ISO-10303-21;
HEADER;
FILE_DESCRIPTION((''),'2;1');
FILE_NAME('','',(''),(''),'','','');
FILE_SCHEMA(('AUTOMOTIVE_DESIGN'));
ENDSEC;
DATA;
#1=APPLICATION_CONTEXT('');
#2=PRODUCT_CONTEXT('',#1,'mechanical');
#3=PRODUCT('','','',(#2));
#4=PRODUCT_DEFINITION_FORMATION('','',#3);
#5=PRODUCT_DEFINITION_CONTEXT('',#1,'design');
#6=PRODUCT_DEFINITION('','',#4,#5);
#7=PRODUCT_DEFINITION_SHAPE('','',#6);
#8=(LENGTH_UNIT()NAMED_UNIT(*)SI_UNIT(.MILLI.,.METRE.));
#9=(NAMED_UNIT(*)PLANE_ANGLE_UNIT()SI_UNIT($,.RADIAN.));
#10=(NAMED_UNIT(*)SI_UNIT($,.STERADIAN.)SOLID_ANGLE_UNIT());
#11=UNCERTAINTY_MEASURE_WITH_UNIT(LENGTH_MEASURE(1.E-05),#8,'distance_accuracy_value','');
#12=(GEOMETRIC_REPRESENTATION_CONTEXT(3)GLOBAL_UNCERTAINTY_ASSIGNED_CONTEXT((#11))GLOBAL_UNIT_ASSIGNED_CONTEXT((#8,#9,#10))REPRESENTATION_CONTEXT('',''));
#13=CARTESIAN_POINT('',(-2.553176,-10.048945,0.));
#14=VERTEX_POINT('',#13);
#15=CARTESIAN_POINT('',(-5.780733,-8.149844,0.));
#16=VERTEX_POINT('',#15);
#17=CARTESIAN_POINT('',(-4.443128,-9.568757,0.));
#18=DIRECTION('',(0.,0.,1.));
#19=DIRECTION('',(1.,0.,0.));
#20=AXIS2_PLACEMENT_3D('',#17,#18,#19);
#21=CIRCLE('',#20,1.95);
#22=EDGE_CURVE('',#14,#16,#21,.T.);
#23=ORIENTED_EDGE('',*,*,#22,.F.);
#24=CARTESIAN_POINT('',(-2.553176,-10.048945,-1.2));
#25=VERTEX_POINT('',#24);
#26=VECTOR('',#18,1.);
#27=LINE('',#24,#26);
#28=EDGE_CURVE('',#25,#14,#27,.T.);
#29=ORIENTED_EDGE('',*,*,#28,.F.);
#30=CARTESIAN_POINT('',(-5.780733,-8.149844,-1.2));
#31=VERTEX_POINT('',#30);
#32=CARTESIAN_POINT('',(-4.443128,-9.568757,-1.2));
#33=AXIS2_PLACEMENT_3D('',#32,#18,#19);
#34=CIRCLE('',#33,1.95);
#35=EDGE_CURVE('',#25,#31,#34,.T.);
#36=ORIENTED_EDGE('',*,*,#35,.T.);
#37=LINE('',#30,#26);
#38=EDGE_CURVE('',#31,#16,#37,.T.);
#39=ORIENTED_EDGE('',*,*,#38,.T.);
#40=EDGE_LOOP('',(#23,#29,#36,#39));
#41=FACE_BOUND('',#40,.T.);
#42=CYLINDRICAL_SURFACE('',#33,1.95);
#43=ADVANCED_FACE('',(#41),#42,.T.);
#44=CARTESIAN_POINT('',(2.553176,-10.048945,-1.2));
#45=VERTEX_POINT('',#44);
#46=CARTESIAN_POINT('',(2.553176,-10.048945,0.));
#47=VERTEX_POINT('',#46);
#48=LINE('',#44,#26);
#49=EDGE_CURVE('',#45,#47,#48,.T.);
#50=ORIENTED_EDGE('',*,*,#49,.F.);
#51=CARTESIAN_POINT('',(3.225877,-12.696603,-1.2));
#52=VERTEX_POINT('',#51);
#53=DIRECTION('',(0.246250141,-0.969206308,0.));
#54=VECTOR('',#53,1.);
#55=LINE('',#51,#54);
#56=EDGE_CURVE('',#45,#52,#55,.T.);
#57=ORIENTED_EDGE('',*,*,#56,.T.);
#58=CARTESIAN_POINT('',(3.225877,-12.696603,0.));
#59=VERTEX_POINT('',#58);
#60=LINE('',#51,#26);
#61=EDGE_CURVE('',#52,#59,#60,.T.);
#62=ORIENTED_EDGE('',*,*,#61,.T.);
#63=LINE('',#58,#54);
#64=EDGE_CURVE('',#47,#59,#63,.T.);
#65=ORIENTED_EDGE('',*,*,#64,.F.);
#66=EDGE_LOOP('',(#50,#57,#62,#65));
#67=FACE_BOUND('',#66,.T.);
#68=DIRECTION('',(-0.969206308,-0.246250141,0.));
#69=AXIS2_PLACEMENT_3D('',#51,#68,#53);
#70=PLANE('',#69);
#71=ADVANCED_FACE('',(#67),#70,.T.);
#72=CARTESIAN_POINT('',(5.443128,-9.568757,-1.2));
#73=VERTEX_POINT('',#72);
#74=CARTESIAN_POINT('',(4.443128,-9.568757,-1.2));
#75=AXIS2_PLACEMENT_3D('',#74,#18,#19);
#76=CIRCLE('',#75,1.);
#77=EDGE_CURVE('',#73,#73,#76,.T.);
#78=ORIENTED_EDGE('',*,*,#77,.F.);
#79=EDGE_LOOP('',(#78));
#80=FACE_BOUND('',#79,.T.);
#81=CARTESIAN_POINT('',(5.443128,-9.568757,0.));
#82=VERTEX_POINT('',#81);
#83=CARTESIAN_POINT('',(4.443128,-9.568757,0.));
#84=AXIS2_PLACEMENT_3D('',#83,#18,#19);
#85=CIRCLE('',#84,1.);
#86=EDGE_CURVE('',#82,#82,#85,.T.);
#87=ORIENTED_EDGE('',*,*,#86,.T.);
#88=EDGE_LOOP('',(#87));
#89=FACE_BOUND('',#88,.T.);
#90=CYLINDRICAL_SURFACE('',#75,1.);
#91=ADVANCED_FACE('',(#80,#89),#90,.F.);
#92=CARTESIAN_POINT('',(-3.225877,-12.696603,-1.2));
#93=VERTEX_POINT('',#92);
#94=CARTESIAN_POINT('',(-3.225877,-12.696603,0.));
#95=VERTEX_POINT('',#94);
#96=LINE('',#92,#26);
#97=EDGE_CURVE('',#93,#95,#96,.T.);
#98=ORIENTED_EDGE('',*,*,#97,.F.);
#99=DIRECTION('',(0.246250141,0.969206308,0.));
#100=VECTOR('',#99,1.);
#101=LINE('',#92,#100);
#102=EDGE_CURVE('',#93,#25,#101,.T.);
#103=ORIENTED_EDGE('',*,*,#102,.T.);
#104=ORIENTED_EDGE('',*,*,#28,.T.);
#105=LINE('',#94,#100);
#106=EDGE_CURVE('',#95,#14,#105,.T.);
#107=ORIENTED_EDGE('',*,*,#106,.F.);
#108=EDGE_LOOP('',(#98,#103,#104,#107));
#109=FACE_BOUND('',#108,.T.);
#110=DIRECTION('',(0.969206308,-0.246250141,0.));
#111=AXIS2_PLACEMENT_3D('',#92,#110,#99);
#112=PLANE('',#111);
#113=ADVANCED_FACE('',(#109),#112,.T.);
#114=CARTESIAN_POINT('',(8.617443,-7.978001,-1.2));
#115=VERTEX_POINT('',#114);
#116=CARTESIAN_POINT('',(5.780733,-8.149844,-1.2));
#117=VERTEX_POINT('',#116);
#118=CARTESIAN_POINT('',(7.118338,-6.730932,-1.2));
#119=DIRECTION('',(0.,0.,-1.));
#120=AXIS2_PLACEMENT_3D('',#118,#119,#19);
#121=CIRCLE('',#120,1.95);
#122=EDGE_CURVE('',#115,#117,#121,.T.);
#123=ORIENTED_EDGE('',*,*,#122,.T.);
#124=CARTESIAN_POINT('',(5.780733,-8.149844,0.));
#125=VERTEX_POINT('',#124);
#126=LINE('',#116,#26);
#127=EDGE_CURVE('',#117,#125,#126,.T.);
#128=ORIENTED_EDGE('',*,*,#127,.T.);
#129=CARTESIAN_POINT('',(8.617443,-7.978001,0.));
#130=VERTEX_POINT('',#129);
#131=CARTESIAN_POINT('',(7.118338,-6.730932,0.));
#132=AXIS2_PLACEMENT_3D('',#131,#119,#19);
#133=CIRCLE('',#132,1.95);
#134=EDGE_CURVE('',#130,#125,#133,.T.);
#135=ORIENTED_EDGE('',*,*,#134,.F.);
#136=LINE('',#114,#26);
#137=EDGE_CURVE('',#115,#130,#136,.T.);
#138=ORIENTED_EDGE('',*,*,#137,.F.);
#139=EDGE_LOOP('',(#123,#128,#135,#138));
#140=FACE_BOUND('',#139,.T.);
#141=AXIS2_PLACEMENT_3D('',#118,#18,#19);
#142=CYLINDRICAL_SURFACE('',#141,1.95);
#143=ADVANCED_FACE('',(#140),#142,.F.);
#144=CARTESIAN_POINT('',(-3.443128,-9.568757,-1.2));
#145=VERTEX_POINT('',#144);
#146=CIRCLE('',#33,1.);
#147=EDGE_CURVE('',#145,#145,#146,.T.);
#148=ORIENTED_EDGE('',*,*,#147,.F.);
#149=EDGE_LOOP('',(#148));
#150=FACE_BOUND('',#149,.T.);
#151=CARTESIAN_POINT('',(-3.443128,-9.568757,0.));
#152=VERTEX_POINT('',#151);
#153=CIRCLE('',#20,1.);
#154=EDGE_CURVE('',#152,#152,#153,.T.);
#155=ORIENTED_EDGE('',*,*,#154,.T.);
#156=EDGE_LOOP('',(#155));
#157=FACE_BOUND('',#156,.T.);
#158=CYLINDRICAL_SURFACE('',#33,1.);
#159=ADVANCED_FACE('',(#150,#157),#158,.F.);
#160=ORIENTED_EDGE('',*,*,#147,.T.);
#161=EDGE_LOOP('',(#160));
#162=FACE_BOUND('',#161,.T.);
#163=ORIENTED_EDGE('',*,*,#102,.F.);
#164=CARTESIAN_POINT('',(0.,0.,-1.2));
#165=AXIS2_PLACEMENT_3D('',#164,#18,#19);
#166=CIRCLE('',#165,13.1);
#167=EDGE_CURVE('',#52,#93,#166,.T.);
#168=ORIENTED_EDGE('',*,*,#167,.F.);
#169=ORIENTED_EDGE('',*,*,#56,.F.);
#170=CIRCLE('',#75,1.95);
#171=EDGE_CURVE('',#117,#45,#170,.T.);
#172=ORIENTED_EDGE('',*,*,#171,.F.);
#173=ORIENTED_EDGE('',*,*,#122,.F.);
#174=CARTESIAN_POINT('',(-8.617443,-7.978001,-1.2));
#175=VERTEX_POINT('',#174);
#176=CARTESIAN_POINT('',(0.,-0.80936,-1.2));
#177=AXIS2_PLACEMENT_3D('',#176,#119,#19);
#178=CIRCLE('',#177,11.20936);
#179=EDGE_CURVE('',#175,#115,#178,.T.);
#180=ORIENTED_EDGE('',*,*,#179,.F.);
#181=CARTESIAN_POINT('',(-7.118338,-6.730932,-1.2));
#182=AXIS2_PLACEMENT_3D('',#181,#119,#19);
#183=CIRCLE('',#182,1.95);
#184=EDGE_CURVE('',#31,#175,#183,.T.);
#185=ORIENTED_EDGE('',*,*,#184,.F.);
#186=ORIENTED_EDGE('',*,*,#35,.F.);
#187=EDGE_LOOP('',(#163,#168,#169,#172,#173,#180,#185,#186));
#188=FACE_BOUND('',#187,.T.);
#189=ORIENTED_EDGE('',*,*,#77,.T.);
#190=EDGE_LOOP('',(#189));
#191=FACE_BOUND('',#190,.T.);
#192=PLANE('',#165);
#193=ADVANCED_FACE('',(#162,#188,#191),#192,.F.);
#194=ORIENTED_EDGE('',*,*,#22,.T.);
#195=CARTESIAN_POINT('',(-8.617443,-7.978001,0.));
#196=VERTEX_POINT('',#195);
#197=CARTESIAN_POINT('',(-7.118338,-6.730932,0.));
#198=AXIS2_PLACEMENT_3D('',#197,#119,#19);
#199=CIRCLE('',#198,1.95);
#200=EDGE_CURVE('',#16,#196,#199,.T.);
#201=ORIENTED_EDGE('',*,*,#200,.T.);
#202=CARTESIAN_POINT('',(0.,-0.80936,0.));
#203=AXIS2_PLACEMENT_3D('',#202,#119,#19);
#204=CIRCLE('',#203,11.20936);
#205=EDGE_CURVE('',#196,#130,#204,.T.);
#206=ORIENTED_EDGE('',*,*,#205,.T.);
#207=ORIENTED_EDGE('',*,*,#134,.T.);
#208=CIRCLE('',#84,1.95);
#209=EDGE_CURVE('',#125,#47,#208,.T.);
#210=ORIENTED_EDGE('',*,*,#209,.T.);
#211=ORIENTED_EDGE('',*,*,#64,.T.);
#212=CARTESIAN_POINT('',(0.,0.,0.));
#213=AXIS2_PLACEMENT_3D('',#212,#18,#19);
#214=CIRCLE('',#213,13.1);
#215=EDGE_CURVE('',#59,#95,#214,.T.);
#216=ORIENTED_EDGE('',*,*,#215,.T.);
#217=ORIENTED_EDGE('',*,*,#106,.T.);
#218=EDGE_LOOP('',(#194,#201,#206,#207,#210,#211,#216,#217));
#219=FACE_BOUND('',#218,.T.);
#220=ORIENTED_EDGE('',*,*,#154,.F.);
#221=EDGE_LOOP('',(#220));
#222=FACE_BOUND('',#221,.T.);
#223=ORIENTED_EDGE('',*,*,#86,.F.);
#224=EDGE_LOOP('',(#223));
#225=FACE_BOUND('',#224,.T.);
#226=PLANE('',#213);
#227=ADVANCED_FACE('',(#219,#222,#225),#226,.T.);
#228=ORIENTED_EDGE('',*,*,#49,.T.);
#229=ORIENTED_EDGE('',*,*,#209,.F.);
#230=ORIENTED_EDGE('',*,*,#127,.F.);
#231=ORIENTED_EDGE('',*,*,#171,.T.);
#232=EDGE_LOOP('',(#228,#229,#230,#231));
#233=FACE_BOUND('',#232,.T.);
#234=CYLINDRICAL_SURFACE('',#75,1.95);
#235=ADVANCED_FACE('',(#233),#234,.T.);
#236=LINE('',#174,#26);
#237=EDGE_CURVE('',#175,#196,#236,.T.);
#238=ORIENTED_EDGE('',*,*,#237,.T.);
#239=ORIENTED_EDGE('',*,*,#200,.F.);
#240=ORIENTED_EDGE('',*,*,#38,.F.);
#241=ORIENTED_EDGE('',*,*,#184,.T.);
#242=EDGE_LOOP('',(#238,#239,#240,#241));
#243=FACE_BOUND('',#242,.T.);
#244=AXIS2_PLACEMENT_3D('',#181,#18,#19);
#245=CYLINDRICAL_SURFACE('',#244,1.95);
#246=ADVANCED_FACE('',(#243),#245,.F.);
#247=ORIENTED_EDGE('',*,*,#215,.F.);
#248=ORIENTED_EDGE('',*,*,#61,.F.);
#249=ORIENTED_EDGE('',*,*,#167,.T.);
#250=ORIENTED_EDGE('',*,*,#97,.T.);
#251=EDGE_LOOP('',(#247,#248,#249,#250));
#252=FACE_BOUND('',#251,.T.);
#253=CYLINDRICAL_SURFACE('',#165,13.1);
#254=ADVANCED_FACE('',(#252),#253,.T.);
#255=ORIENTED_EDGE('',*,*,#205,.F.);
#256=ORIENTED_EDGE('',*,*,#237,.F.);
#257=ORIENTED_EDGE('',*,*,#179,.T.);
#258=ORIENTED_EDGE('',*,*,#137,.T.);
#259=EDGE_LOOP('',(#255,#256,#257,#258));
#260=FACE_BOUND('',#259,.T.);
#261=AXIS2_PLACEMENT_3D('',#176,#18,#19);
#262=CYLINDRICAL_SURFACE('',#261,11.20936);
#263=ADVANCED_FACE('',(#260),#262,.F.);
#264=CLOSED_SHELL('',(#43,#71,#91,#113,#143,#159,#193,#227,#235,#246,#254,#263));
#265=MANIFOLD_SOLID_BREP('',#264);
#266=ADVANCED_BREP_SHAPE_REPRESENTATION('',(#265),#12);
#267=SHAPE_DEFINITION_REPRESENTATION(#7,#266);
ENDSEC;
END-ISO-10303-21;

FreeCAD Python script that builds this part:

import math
import FreeCAD as App
import Part
import Sketcher
from FreeCAD import Vector

doc = App.newDocument("Part")
body = doc.addObject("PartDesign::Body", "Body")

# Sketch on XY plane
sketch1 = body.newObject("Sketcher::SketchObject", "Sketch")
sketch1.AttachmentSupport = (doc.getObject("XY_Plane"), [""])
sketch1.MapMode = "FlatFace"
sketch1.addGeometry([
    Part.LineSegment(Vector(2.553176, -10.048945, 0), Vector(3.225877, -12.696603, 0)),  # 0
    Part.ArcOfCircle(Part.Circle(Vector(0, 0, 0), Vector(0, 0, 1), 13.1), math.radians(-75.744275), math.radians(255.744275)),  # 1
    Part.LineSegment(Vector(-3.225877, -12.696603, 0), Vector(-2.553176, -10.048945, 0)),  # 2
    Part.ArcOfCircle(Part.Circle(Vector(-4.443128, -9.568757, 0), Vector(0, 0, 1), 1.95), math.radians(-14.255725), math.radians(133.310459)),  # 3
    Part.ArcOfCircle(Part.Circle(Vector(-7.118338, -6.730932, 0), Vector(0, 0, 1), 1.95), math.radians(-140.243754), math.radians(-46.689541)),  # 4
    Part.ArcOfCircle(Part.Circle(Vector(0, -0.80936, 0), Vector(0, 0, 1), 11.20936), math.radians(-39.756246), math.radians(219.756246)),  # 5
    Part.ArcOfCircle(Part.Circle(Vector(7.118338, -6.730932, 0), Vector(0, 0, 1), 1.95), math.radians(-133.310459), math.radians(-39.756246)),  # 6
    Part.ArcOfCircle(Part.Circle(Vector(4.443128, -9.568757, 0), Vector(0, 0, 1), 1.95), math.radians(46.689541), math.radians(194.255725)),  # 7
    Part.Circle(Vector(4.443128, -9.568757, 0), Vector(0, 0, 1), 1),  # 8
    Part.Circle(Vector(-4.443128, -9.568757, 0), Vector(0, 0, 1), 1),  # 9
], False)
sketch1.addConstraint([
    Sketcher.Constraint("Coincident", 0, 2, 1, 1),
    Sketcher.Constraint("Coincident", 1, 2, 2, 1),
    Sketcher.Constraint("Tangent", 2, 2, 3, 1),
    Sketcher.Constraint("Tangent", 3, 2, 4, 2),
    Sketcher.Constraint("Tangent", 4, 1, 5, 2),
    Sketcher.Constraint("Tangent", 5, 1, 6, 2),
    Sketcher.Constraint("Tangent", 6, 1, 7, 1),
    Sketcher.Constraint("Tangent", 7, 2, 0, 1),
    Sketcher.Constraint("Coincident", 1, 3, -1, 1),
    Sketcher.Constraint("Coincident", 8, 3, 7, 3),
    Sketcher.Constraint("Coincident", 9, 3, 3, 3),
    Sketcher.Constraint("Equal", 3, 4),
    Sketcher.Constraint("Equal", 4, 6),
    Sketcher.Constraint("Equal", 6, 7),
    Sketcher.Constraint("Equal", 8, 9),
    Sketcher.Constraint("Symmetric", 4, 3, 6, 3, -2),
    Sketcher.Constraint("Symmetric", 2, 2, 7, 2, -2),
    Sketcher.Constraint("Diameter", 8, 2.0),
    Sketcher.Constraint("Radius", 1, 13.1),
    Sketcher.Constraint("Radius", 3, 1.95),
    Sketcher.Constraint("Radius", 5, 11.20936),
    Sketcher.Constraint("DistanceY", 4, 1, -1, 1, 7.978001),
    Sketcher.Constraint("DistanceX", 1, 2, 2, 2, 0.672701),
    Sketcher.Constraint("DistanceY", 2, 2, 3, 2, 1.899101),
    Sketcher.Constraint("DistanceY", 0, 2, 5, 1, 4.718602),
])
pad1 = body.newObject("PartDesign::Pad", "Pad")
pad1.Profile = sketch1
pad1.Length = 1.2
pad1.Reversed = True

doc.recompute()
